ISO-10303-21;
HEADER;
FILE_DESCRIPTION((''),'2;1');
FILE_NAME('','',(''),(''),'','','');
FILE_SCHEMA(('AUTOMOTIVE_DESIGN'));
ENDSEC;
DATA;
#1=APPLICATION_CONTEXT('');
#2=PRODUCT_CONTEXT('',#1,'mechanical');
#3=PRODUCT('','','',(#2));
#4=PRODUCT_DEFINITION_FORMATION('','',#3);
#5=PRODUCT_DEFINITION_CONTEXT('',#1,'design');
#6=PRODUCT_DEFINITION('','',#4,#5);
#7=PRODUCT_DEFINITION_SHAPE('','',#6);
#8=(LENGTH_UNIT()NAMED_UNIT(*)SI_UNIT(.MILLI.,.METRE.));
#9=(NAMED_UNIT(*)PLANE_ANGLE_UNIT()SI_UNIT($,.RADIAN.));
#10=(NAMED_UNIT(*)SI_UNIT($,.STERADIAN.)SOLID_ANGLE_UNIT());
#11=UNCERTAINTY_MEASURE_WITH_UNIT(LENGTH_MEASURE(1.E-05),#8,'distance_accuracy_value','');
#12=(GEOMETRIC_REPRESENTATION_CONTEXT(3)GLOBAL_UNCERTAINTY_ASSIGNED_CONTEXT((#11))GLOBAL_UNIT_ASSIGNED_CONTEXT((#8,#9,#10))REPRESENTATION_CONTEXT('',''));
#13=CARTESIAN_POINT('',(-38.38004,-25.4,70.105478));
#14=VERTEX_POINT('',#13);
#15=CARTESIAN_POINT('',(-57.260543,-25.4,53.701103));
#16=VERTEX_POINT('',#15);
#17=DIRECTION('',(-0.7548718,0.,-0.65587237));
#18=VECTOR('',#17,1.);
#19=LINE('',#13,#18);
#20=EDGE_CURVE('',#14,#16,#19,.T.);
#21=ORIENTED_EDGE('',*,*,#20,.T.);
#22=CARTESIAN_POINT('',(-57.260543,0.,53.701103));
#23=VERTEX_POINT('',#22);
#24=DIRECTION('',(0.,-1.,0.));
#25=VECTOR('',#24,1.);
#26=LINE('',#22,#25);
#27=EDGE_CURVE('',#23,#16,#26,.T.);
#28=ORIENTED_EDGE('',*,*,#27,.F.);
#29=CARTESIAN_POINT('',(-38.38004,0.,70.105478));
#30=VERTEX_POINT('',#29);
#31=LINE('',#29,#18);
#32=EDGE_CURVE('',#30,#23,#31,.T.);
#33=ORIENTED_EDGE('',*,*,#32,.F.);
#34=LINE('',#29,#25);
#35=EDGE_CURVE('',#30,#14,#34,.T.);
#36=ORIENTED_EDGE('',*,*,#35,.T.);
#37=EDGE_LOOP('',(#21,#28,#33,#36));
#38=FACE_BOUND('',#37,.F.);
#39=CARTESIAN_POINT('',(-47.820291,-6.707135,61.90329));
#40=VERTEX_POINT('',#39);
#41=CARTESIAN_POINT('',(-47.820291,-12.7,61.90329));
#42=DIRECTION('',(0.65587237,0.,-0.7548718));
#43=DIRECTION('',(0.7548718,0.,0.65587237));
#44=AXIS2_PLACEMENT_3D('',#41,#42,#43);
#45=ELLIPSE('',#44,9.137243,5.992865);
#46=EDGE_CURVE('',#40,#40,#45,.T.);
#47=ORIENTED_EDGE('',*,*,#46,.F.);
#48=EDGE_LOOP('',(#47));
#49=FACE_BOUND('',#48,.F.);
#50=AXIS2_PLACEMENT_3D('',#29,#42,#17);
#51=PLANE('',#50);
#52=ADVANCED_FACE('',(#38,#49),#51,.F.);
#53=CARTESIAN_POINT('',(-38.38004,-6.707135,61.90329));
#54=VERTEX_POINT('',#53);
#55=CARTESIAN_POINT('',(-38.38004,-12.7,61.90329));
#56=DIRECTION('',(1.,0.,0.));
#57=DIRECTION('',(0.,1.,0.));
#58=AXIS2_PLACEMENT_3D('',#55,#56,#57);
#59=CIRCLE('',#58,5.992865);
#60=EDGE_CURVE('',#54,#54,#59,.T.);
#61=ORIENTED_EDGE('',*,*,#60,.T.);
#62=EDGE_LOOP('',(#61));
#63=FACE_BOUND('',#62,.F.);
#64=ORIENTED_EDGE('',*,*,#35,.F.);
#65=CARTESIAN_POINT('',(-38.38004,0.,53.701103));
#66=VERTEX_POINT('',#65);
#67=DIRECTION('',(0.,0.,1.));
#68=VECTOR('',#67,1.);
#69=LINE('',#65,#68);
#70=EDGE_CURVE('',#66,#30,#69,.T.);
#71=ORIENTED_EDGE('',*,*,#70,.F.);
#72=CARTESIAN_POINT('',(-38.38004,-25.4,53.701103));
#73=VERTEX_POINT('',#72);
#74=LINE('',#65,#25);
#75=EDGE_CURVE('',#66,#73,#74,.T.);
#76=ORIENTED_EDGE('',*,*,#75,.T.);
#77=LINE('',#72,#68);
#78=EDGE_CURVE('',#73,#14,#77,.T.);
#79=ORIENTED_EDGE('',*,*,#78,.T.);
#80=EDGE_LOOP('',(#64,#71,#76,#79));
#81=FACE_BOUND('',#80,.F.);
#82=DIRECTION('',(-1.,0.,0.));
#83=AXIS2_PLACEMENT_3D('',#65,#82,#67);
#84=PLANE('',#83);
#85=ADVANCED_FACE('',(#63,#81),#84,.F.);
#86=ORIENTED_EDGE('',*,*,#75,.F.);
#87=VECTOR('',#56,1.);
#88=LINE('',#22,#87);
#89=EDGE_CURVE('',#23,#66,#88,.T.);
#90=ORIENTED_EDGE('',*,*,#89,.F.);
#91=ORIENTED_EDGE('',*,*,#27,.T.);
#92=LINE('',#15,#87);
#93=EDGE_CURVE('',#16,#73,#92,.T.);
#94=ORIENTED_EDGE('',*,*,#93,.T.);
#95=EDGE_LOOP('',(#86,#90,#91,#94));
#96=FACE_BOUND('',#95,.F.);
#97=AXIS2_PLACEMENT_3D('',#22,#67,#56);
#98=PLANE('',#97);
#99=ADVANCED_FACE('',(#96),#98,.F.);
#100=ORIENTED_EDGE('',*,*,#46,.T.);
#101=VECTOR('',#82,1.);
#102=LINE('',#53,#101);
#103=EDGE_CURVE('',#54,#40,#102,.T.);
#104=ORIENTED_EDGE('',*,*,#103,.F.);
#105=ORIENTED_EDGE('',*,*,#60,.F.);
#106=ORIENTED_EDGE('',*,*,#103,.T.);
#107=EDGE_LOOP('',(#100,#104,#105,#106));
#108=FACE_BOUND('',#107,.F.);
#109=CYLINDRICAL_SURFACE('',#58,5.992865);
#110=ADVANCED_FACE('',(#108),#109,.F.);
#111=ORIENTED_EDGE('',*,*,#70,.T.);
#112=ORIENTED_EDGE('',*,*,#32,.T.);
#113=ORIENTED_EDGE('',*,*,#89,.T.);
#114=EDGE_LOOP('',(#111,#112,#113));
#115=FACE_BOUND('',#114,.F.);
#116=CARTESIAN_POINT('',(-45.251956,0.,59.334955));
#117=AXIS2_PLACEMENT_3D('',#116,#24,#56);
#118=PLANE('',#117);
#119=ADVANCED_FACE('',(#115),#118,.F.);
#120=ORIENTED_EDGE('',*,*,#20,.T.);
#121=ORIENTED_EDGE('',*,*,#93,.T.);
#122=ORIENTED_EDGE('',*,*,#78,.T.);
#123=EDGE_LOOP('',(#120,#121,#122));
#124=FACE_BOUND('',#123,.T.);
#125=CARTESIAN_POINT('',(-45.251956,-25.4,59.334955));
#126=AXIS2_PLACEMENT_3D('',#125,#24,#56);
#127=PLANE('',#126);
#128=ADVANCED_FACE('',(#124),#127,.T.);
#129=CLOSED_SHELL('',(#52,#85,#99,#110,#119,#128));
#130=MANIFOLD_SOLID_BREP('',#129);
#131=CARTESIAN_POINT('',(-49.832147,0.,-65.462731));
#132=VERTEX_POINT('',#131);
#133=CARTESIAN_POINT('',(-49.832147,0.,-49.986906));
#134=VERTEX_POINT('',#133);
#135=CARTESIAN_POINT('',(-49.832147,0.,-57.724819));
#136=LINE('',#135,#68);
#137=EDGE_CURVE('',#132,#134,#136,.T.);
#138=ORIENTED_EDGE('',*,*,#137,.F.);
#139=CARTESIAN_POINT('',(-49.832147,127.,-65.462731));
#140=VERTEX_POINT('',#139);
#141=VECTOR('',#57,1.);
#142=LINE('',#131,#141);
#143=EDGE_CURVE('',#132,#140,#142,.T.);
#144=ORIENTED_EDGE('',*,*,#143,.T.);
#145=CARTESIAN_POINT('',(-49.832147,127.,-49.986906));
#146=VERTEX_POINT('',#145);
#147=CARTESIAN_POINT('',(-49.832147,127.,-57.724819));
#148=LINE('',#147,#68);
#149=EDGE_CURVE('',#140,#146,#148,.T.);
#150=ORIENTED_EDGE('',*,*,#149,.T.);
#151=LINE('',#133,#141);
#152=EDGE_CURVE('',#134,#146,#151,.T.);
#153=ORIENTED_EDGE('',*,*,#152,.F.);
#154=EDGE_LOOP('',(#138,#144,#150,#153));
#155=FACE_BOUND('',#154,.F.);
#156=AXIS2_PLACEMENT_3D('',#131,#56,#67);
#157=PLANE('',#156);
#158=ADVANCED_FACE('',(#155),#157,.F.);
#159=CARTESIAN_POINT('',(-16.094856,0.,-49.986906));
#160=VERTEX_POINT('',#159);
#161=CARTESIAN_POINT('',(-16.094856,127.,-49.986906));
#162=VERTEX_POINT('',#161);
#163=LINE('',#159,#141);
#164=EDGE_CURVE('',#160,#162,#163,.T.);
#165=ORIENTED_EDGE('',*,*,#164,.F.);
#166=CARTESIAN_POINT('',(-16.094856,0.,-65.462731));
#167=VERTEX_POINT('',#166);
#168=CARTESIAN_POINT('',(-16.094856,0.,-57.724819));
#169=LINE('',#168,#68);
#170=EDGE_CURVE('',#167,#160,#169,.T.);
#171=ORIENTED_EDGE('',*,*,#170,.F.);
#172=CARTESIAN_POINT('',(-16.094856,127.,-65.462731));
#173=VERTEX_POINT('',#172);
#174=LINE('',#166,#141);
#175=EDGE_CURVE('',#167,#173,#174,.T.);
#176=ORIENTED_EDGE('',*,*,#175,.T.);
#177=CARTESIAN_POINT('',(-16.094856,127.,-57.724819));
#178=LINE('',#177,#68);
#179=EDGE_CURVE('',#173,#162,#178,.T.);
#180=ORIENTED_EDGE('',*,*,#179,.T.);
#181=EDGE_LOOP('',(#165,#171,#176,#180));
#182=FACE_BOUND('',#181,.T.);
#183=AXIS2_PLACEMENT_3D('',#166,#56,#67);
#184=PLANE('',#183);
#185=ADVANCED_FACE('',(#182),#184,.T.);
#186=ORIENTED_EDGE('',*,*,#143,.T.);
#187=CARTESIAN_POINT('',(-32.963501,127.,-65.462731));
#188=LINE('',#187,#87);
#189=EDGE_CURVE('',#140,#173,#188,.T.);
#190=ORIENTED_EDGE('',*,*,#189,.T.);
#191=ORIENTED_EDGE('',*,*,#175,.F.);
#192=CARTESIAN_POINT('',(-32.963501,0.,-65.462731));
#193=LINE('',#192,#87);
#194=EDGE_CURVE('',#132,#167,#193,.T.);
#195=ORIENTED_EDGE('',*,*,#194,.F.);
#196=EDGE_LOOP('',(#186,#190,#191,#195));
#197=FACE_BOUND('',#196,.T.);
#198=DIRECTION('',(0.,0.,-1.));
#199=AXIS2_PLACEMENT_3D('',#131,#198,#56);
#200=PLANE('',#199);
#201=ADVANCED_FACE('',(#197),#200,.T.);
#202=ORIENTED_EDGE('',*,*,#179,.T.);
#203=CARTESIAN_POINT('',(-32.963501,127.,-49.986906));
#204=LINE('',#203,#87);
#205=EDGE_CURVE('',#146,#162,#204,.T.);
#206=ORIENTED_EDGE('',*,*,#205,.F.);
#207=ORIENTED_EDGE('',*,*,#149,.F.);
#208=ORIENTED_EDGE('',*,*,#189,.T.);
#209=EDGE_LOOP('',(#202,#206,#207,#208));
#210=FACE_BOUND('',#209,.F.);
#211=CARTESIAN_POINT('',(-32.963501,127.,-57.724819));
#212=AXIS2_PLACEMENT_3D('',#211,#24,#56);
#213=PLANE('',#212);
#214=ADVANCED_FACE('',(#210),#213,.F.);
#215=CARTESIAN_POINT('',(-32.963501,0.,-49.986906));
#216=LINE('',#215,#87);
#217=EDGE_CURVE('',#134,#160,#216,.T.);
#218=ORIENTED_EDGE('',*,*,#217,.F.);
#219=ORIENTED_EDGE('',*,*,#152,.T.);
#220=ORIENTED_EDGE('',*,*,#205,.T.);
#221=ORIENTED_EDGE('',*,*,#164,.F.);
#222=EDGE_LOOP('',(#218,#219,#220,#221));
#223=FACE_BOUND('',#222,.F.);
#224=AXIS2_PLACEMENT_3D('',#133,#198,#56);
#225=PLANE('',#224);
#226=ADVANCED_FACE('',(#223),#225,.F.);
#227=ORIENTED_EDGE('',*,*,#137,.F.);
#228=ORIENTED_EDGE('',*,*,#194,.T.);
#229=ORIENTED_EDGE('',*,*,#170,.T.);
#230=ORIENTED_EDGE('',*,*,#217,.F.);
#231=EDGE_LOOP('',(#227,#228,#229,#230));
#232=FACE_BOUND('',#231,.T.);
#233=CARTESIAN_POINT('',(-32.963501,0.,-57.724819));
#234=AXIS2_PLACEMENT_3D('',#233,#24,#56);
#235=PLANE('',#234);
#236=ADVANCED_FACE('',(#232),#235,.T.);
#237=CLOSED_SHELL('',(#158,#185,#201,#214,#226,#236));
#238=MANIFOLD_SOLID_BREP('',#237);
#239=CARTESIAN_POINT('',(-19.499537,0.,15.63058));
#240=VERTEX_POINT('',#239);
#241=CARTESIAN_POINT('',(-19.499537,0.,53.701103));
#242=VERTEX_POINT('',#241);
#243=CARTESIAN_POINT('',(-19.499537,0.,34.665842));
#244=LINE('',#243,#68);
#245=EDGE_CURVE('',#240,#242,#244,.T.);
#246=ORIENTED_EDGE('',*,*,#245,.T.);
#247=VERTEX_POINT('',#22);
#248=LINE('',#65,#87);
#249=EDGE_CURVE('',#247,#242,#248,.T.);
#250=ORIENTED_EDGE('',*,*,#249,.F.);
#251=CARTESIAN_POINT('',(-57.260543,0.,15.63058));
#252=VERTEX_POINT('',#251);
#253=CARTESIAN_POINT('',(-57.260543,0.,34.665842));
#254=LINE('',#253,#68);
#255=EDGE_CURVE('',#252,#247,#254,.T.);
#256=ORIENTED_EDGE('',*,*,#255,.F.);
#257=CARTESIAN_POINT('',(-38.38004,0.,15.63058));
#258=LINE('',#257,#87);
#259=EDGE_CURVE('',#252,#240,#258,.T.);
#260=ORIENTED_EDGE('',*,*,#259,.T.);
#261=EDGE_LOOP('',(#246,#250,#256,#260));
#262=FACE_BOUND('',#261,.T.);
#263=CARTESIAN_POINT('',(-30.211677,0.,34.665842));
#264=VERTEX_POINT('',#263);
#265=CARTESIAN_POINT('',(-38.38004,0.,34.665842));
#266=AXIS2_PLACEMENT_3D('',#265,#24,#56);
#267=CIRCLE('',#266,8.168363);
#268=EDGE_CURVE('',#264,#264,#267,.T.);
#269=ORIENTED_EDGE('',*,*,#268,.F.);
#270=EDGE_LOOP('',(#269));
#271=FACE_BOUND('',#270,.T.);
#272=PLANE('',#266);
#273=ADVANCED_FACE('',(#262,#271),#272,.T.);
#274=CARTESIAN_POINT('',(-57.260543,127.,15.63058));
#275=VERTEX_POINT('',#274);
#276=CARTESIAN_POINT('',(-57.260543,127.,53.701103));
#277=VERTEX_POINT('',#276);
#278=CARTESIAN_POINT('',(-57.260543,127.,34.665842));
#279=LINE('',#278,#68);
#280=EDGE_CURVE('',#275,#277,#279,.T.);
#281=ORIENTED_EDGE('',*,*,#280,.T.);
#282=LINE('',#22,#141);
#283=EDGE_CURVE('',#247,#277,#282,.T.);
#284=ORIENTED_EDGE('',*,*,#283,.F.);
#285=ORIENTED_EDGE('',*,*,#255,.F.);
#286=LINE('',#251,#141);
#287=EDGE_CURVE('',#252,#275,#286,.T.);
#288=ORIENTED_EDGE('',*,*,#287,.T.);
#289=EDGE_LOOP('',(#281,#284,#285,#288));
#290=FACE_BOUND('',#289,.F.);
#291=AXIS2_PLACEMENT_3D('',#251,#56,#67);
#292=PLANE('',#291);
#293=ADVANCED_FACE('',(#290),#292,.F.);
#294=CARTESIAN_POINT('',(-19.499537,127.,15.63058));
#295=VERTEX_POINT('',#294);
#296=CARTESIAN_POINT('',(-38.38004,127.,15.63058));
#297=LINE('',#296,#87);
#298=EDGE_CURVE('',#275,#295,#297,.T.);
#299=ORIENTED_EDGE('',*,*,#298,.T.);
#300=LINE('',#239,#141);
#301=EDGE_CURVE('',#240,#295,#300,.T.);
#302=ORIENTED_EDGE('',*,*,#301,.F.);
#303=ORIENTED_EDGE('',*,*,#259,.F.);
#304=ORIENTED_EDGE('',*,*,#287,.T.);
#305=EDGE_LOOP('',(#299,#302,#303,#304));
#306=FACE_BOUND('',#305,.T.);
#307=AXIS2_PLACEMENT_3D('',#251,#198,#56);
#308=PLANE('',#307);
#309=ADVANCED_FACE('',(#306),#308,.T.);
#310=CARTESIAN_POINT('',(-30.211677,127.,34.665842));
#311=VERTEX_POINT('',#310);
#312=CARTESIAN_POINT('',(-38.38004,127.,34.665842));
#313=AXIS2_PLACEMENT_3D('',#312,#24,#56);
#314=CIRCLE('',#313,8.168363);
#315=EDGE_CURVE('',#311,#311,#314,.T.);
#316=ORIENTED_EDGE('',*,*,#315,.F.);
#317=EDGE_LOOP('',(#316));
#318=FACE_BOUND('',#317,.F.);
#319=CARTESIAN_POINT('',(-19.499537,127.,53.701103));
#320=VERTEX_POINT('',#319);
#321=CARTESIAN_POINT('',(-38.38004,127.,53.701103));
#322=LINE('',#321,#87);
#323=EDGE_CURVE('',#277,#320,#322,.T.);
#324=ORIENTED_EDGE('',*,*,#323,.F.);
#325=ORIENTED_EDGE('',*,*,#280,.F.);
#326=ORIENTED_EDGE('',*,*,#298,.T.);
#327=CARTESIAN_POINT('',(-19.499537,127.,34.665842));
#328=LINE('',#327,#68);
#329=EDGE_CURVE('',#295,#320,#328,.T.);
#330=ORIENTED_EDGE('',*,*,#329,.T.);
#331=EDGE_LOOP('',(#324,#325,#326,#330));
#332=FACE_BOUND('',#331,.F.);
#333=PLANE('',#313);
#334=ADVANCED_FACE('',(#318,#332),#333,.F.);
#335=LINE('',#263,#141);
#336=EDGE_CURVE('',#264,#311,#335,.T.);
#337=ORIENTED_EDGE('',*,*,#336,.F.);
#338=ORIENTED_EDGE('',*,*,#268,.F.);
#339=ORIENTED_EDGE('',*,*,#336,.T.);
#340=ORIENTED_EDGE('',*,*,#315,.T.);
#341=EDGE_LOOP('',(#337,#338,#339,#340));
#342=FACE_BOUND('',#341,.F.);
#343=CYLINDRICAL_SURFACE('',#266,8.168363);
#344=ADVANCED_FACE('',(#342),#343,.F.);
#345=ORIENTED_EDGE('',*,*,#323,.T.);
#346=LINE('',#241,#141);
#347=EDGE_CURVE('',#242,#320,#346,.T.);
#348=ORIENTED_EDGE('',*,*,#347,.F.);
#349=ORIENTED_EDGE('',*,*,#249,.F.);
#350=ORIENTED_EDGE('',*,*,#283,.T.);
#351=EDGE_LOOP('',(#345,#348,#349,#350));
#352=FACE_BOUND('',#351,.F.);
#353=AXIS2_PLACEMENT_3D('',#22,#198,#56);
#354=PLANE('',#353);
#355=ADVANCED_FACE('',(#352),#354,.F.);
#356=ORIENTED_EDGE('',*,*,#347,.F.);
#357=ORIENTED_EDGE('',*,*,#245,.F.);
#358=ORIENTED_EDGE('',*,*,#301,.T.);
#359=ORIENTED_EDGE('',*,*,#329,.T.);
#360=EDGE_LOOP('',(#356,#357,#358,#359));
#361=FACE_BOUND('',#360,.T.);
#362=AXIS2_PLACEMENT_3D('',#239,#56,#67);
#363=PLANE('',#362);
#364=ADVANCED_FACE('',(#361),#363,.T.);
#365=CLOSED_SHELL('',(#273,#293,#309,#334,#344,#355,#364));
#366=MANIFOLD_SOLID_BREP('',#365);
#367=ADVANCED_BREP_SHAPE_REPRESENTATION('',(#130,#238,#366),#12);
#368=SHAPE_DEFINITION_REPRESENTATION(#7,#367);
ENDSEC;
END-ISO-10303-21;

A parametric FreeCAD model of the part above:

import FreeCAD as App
import Part
import Sketcher
from FreeCAD import Vector
Q = App.Units.Quantity

doc = App.newDocument("Part")
body = doc.addObject("PartDesign::Body", "Body")

sketch1 = body.newObject("Sketcher::SketchObject", "Sketch")
sketch1.AttachmentSupport = (doc.getObject("XZ_Plane"), [""])
sketch1.MapMode = "FlatFace"
sketch1.addGeometry([
    Part.LineSegment(Vector(-50, -50, 0), Vector(-50, -65, 0)),
    Part.LineSegment(Vector(-50, -65, 0), Vector(-16, -65, 0)),
    Part.LineSegment(Vector(-16, -65, 0), Vector(-16, -50, 0)),
    Part.LineSegment(Vector(-16, -50, 0), Vector(-50, -50, 0)),
], False)
sketch1.addConstraint([
    Sketcher.Constraint("Coincident", 0, 2, 1, 1),
    Sketcher.Constraint("Coincident", 1, 2, 2, 1),
    Sketcher.Constraint("Coincident", 2, 2, 3, 1),
    Sketcher.Constraint("Coincident", 3, 2, 0, 1),
    Sketcher.Constraint("Vertical", 0),
    Sketcher.Constraint("Horizontal", 1),
    Sketcher.Constraint("Vertical", 2),
    Sketcher.Constraint("Horizontal", 3),
    Sketcher.Constraint("DistanceX", 1, 1, 1, 2, Q("33.737291 mm")),
    Sketcher.Constraint("DistanceY", 0, 2, 0, 1, Q("15.475824 mm")),
    Sketcher.Constraint("DistanceY", 0, 2, -1, 1, Q("65.462731 mm")),
    Sketcher.Constraint("DistanceX", 0, 2, -1, 1, Q("49.832147 mm")),
])
pad1 = body.newObject("PartDesign::Pad", "Pad")
pad1.Profile = sketch1
pad1.Length = Q("5 in")
pad1.Reversed = True
body2 = doc.addObject("PartDesign::Body", "Body001")

sketch2 = body2.newObject("Sketcher::SketchObject", "Sketch001")
sketch2.AttachmentSupport = (doc.getObject("XZ_Plane001"), [""])
sketch2.MapMode = "FlatFace"
sketch2.addGeometry([
    Part.LineSegment(Vector(-57, 54, 0), Vector(-57, 16, 0)),
    Part.LineSegment(Vector(-57, 16, 0), Vector(-19, 16, 0)),
    Part.LineSegment(Vector(-19, 16, 0), Vector(-19, 54, 0)),
    Part.LineSegment(Vector(-19, 54, 0), Vector(-57, 54, 0)),
], False)
sketch2.addConstraint([
    Sketcher.Constraint("Coincident", 0, 2, 1, 1),
    Sketcher.Constraint("Coincident", 1, 2, 2, 1),
    Sketcher.Constraint("Coincident", 2, 2, 3, 1),
    Sketcher.Constraint("Coincident", 3, 2, 0, 1),
    Sketcher.Constraint("Vertical", 0),
    Sketcher.Constraint("Horizontal", 1),
    Sketcher.Constraint("Vertical", 2),
    Sketcher.Constraint("Horizontal", 3),
    Sketcher.Constraint("DistanceX", 1, 1, 1, 2, Q("37.761007 mm")),
    Sketcher.Constraint("DistanceY", 0, 2, 0, 1, Q("38.070522 mm")),
    Sketcher.Constraint("DistanceY", -1, 1, 0, 2, Q("15.63058 mm")),
    Sketcher.Constraint("DistanceX", 0, 2, -1, 1, Q("57.260543 mm")),
])
pad2 = body2.newObject("PartDesign::Pad", "Pad001")
pad2.Profile = sketch2
pad2.Length = Q("5 in")
pad2.Reversed = True

sketch3 = body2.newObject("Sketcher::SketchObject", "Sketch002")
sketch3.AttachmentSupport = (doc.getObject("XZ_Plane001"), [""])
sketch3.MapMode = "FlatFace"
sketch3.addGeometry(Part.Circle(Vector(-38, 35, 0), Vector(0, 0, 1), 8), False)
sketch3.addConstraint([
    Sketcher.Constraint("Diameter", 0, Q("16.336727 mm")),
    Sketcher.Constraint("DistanceX", 0, 3, -1, 1, Q("38.38004 mm")),
    Sketcher.Constraint("DistanceY", -1, 1, 0, 3, Q("34.665842 mm")),
])
pocket1 = body2.newObject("PartDesign::Pocket", "Pocket")
pocket1.Profile = sketch3
pocket1.Type = "ThroughAll"
body3 = doc.addObject("PartDesign::Body", "Body002")

sketch4 = body3.newObject("Sketcher::SketchObject", "Sketch003")
sketch4.AttachmentSupport = (doc.getObject("XZ_Plane002"), [""])
sketch4.MapMode = "FlatFace"
sketch4.addGeometry([
    Part.LineSegment(Vector(-57, 54, 0), Vector(-38, 54, 0)),
    Part.LineSegment(Vector(-38, 54, 0), Vector(-38, 70, 0)),
    Part.LineSegment(Vector(-38, 70, 0), Vector(-57, 54, 0)),
], False)
sketch4.addConstraint([
    Sketcher.Constraint("Coincident", 0, 2, 1, 1),
    Sketcher.Constraint("Coincident", 1, 2, 2, 1),
    Sketcher.Constraint("Coincident", 2, 2, 0, 1),
    Sketcher.Constraint("Horizontal", 0),
    Sketcher.Constraint("Vertical", 1),
    Sketcher.Constraint("DistanceX", 0, 1, 0, 2, Q("18.880503 mm")),
    Sketcher.Constraint("DistanceY", 1, 1, 1, 2, Q("16.404375 mm")),
    Sketcher.Constraint("DistanceX", 0, 2, -1, 1, Q("38.38004 mm")),
    Sketcher.Constraint("DistanceY", -1, 1, 1, 2, Q("70.105478 mm")),
])
pad3 = body3.newObject("PartDesign::Pad", "Pad002")
pad3.Profile = sketch4
pad3.Length = Q("1 in")

sketch5 = body3.newObject("Sketcher::SketchObject", "Sketch004")
sketch5.AttachmentSupport = (doc.getObject("YZ_Plane002"), [""])
sketch5.MapMode = "FlatFace"
sketch5.AttachmentOffset = App.Placement(Vector(0, 0, -38.38004), App.Rotation())
sketch5.addGeometry(Part.Circle(Vector(-13, 62, 0), Vector(0, 0, 1), 6), False)
sketch5.addConstraint([
    Sketcher.Constraint("DistanceX", 0, 3, -1, 1, Q("0.5 in")),
    Sketcher.Constraint("Diameter", 0, Q("11.985731 mm")),
    Sketcher.Constraint("DistanceY", -1, 1, 0, 3, Q("61.90329 mm")),
])
pocket2 = body3.newObject("PartDesign::Pocket", "Pocket001")
pocket2.Profile = sketch5
pocket2.Length = Q("1 in")

doc.recompute()
